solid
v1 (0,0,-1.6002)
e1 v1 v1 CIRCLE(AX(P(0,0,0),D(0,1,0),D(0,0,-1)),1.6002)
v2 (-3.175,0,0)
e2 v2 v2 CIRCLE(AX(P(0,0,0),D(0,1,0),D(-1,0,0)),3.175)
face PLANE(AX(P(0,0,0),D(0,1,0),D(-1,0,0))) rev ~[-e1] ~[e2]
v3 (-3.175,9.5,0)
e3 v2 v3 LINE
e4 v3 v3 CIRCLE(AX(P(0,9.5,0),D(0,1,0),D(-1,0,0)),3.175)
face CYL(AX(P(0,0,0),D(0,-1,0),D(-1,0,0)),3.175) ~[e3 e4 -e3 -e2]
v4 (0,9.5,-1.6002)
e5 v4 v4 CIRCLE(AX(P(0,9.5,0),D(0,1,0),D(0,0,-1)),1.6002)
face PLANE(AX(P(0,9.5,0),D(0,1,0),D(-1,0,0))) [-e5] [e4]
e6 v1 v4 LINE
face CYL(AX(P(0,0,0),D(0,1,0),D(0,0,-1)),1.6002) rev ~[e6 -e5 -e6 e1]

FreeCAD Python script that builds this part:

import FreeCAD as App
import Part
import Sketcher
from FreeCAD import Vector
Q = App.Units.Quantity

doc = App.newDocument("Part")
body = doc.addObject("PartDesign::Body", "Body")

# Sketch on XZ plane
sketch1 = body.newObject("Sketcher::SketchObject", "Sketch")
sketch1.AttachmentSupport = (doc.getObject("XZ_Plane"), [""])
sketch1.MapMode = "FlatFace"
sketch1.addGeometry(Part.Circle(Vector(0, 0, 0), Vector(0, 0, 1), 3.2), False)
sketch1.addConstraint([
    Sketcher.Constraint("Coincident", 0, 3, -1, 1),
    Sketcher.Constraint("Diameter", 0, Q("0.25 in")),
])
pad1 = body.newObject("PartDesign::Pad", "Pad")
pad1.Profile = sketch1
pad1.Length = 9.5
pad1.Reversed = True

# Sketch on XZ plane
sketch2 = body.newObject("Sketcher::SketchObject", "Sketch001")
sketch2.AttachmentSupport = (doc.getObject("XZ_Plane"), [""])
sketch2.MapMode = "FlatFace"
sketch2.addGeometry(Part.Circle(Vector(0, 0, 0), Vector(0, 0, 1), 1.6), False)
sketch2.addConstraint([
    Sketcher.Constraint("Coincident", 0, 3, -1, 1),
    Sketcher.Constraint("Diameter", 0, Q("0.126 in")),
])
doc.recompute()
hole = body.newObject("PartDesign::Hole", "Hole")
hole.Profile = sketch2
hole.ThreadType = "None"
hole.Diameter = Q("0.126 in")
hole.DepthType = "ThroughAll"

doc.recompute()
